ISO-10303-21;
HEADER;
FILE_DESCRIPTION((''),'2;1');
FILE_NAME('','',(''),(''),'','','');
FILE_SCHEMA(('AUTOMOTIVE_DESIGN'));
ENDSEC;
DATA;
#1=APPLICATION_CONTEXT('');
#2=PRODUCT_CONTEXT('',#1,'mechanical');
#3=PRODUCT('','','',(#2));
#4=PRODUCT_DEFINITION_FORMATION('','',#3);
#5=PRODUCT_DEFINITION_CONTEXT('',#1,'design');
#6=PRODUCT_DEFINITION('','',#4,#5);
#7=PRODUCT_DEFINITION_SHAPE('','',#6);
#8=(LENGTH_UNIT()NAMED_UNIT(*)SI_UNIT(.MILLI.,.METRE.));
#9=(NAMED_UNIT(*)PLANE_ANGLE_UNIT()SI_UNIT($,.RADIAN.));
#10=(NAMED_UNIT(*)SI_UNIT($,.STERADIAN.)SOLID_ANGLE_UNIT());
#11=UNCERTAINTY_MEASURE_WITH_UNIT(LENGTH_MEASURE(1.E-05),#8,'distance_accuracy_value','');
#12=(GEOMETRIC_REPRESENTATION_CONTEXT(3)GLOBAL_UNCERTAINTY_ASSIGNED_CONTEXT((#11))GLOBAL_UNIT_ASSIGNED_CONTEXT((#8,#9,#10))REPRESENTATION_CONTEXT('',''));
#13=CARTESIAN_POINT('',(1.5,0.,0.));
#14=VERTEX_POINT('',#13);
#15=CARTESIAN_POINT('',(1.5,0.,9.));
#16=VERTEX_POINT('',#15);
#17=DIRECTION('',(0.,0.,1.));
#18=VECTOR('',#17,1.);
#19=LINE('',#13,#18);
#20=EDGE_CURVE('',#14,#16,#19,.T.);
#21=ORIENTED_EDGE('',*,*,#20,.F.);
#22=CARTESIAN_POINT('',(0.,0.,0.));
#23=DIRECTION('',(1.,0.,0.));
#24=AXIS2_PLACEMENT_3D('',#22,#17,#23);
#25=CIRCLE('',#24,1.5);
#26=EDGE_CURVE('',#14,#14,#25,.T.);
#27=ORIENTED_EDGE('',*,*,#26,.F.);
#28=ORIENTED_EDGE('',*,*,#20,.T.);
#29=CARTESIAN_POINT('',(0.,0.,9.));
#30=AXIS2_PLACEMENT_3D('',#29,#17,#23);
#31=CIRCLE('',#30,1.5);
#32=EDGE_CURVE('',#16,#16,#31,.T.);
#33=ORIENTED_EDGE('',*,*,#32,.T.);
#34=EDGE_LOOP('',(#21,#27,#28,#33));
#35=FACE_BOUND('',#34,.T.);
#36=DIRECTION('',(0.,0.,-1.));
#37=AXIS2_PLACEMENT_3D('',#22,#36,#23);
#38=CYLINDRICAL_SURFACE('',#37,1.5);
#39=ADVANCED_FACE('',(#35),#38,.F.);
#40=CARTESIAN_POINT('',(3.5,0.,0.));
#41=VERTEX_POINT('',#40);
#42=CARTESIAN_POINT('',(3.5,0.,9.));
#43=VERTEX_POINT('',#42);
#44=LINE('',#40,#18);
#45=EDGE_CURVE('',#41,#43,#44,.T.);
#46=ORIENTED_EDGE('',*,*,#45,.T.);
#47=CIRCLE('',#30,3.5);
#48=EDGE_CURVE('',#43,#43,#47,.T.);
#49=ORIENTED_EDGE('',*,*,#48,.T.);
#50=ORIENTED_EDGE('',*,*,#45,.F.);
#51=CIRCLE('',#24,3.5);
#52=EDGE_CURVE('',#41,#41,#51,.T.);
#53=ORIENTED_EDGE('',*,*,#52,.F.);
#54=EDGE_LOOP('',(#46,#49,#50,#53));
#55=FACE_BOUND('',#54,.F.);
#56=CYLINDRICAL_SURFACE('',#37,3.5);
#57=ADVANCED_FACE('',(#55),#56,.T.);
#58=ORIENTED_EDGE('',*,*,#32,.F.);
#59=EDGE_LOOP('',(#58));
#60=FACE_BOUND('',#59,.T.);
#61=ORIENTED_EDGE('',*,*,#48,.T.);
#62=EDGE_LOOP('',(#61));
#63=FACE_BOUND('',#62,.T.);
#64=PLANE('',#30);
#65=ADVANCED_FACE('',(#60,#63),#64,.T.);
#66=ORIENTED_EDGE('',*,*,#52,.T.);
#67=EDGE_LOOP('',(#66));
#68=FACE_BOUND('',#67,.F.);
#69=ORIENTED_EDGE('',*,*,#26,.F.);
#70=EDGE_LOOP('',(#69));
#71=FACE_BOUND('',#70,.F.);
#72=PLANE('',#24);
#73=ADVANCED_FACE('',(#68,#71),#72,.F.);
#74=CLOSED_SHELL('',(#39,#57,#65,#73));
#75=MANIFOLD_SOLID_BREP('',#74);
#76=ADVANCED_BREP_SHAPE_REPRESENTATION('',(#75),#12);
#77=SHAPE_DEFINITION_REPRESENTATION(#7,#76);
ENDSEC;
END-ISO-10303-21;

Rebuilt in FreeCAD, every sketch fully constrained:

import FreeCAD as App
import Part
import Sketcher
from FreeCAD import Vector
Q = App.Units.Quantity

doc = App.newDocument("Part")
body = doc.addObject("PartDesign::Body", "Body")

sketch1 = doc.addObject("Sketcher::SketchObject", "Sketch")
body.addObject(sketch1)
sketch1.AttachmentSupport = (doc.XY_Plane, [""])
sketch1.MapMode = "FlatFace"
sketch1.addGeometry([
    Part.Circle(Vector(0, 0, 0), Vector(0, 0, 1), 3.5),
    Part.Circle(Vector(0, 0, 0), Vector(0, 0, 1), 1.5),
], False)
sketch1.addConstraint([
    Sketcher.Constraint("Coincident", 0, 3, -1, 1),
    Sketcher.Constraint("Coincident", 1, 3, -1, 1),
    Sketcher.Constraint("Diameter", 0, Q("7 mm")),
    Sketcher.Constraint("Diameter", 1, Q("3 mm")),
])
pad1 = doc.addObject("PartDesign::Pad", "Pad")
body.addObject(pad1)
pad1.Profile = sketch1
pad1.Length = 9

doc.recompute()
